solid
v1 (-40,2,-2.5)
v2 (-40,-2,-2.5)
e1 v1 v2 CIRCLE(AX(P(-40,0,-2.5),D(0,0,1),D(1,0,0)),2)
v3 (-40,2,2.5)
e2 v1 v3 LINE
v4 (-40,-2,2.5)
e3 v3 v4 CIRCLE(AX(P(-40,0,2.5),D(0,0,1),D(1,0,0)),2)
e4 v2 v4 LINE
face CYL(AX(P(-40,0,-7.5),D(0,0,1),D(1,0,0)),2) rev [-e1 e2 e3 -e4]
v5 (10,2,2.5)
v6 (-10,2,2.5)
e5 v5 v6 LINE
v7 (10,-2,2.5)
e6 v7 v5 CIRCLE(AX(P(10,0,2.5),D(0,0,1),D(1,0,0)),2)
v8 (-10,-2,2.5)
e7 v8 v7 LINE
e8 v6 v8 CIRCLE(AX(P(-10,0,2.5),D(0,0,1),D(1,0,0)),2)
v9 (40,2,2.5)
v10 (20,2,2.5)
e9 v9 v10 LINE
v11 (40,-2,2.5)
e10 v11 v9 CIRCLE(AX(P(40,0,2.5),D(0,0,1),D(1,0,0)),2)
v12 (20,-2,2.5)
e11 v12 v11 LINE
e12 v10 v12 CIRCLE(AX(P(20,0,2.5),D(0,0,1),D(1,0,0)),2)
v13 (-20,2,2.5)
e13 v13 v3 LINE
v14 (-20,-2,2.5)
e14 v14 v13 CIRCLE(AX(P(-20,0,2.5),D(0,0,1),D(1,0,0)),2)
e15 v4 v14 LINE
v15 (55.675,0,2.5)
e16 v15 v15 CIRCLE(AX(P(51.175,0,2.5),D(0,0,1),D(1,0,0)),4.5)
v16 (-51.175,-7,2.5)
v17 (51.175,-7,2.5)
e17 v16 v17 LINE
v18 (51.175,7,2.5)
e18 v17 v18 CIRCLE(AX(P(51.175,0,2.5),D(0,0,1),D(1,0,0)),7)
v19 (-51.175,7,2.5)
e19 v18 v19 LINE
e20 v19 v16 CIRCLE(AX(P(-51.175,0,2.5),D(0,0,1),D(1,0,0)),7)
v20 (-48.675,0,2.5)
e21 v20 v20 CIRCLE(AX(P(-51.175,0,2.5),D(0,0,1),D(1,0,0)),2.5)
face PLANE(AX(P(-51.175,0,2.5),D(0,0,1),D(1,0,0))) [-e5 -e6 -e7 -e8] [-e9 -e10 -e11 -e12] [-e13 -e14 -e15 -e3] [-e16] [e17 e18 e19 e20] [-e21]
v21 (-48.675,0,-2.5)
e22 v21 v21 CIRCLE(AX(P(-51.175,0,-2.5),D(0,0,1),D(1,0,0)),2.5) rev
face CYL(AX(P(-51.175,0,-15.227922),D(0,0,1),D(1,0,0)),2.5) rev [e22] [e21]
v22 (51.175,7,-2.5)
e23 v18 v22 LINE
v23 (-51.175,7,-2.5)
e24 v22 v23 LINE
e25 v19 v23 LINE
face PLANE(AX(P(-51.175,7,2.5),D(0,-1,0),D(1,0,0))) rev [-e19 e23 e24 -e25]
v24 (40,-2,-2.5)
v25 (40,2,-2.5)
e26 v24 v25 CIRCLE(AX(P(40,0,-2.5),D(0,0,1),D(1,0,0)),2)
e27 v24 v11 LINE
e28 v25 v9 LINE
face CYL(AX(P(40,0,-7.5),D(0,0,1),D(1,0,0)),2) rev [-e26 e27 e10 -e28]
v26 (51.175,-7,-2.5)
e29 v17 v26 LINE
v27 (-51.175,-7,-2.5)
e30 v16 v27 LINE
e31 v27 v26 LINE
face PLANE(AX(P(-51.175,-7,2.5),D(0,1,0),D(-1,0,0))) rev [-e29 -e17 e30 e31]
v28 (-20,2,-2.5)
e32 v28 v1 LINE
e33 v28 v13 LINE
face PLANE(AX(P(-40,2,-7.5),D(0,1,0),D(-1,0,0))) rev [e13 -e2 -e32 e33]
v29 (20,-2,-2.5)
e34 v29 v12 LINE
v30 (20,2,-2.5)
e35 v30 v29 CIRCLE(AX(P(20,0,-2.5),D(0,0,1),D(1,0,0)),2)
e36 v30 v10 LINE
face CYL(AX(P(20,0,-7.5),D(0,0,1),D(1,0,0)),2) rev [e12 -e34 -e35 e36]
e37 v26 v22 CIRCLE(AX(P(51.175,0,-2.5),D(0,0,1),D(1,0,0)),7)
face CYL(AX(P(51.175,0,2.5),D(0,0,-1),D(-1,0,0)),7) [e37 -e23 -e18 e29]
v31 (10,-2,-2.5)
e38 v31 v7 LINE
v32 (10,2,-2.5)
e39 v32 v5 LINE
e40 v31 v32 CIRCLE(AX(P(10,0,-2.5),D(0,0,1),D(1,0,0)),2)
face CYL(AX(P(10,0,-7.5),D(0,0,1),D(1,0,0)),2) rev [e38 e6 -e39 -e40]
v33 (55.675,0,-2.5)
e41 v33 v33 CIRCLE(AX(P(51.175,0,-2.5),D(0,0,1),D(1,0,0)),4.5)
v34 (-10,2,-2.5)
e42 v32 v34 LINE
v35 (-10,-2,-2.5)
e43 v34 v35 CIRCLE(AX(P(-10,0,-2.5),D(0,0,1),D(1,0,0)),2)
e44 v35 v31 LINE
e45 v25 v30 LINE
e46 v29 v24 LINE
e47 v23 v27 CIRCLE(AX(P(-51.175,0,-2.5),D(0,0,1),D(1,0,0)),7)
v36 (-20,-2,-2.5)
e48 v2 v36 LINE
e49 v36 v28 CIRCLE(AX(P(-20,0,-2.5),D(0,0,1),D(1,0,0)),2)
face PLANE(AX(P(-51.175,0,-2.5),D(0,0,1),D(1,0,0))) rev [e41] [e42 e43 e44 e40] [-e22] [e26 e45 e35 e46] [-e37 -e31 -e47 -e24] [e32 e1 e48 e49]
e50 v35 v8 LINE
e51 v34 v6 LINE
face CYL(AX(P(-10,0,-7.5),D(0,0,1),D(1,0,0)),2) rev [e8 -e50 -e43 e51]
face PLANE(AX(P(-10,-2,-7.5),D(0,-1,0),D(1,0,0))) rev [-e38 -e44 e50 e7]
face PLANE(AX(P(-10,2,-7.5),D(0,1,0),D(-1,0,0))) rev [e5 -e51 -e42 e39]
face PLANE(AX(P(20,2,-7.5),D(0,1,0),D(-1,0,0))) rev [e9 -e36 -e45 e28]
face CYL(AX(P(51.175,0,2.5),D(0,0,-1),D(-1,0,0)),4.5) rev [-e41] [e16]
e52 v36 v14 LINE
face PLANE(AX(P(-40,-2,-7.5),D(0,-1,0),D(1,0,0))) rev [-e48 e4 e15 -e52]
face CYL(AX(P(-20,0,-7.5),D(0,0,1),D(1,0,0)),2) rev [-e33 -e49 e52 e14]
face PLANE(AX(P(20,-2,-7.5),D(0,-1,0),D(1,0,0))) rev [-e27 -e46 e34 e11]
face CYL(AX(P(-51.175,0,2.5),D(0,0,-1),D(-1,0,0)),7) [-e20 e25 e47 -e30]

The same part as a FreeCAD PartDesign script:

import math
import FreeCAD as App
import Part
import Sketcher

doc = App.newDocument("Part")
body = doc.addObject("PartDesign::Body", "Body")

# Sketch on XY plane
sketch1 = doc.addObject("Sketcher::SketchObject", "Sketch")
body.addObject(sketch1)
sketch1.AttachmentSupport = (doc.XY_Plane, [""])
sketch1.MapMode = "FlatFace"
sketch1.addGeometry([
    Part.LineSegment(App.Vector(51.2, 7, 0), App.Vector(-51.2, 7, 0)),  # 0
    Part.ArcOfCircle(Part.Circle(App.Vector(-51.2, 0, 0), App.Vector(0, 0, 1), 7), math.radians(90), math.radians(270)),  # 1
    Part.LineSegment(App.Vector(-51.2, -7, 0), App.Vector(51.2, -7, 0)),  # 2
    Part.ArcOfCircle(Part.Circle(App.Vector(51.2, 0, 0), App.Vector(0, 0, 1), 7), math.radians(-90), math.radians(90)),  # 3
    Part.Circle(App.Vector(51.2, 0, 0), App.Vector(0, 0, 1), 4.5),  # 4
    Part.Circle(App.Vector(-51.2, 0, 0), App.Vector(0, 0, 1), 4.5),  # 5
], False)
sketch1.addConstraint([
    Sketcher.Constraint("Tangent", 0, 2, 1, 1),
    Sketcher.Constraint("Tangent", 1, 2, 2, 1),
    Sketcher.Constraint("Tangent", 2, 2, 3, 1),
    Sketcher.Constraint("Tangent", 3, 2, 0, 1),
    Sketcher.Constraint("Horizontal", 0),
    Sketcher.Constraint("Horizontal", 2),
    Sketcher.Constraint("Coincident", 4, 3, 3, 3),
    Sketcher.Constraint("Coincident", 5, 3, 1, 3),
    Sketcher.Constraint("Equal", 4, 5),
    Sketcher.Constraint("Symmetric", 1, 3, 3, 3, -1, 1),
    Sketcher.Constraint("Diameter", 4, 9.0),
    Sketcher.Constraint("Radius", 1, 7.0),
    Sketcher.Constraint("DistanceX", 0, 2, 0, 1, 102.35),
])
pad1 = doc.addObject("PartDesign::Pad", "Pad")
body.addObject(pad1)
pad1.Profile = sketch1
pad1.Length = 5
pad1.Midplane = True

# Sketch on XY plane
sketch2 = doc.addObject("Sketcher::SketchObject", "Sketch001")
body.addObject(sketch2)
sketch2.AttachmentSupport = (doc.XY_Plane, [""])
sketch2.MapMode = "FlatFace"
sketch2.AttachmentOffset = App.Placement(App.Vector(0, 0, 2.5), App.Rotation())
sketch2.addGeometry([
    Part.LineSegment(App.Vector(10, 2, 0), App.Vector(-10, 2, 0)),
    Part.ArcOfCircle(Part.Circle(App.Vector(-10, 0, 0), App.Vector(0, 0, 1), 2), math.radians(90), math.radians(270)),
    Part.LineSegment(App.Vector(-10, -2, 0), App.Vector(10, -2, 0)),
    Part.ArcOfCircle(Part.Circle(App.Vector(10, 0, 0), App.Vector(0, 0, 1), 2), math.radians(-90), math.radians(90)),
], False)
sketch2.addConstraint([
    Sketcher.Constraint("Tangent", 0, 2, 1, 1),
    Sketcher.Constraint("Tangent", 1, 2, 2, 1),
    Sketcher.Constraint("Tangent", 2, 2, 3, 1),
    Sketcher.Constraint("Tangent", 3, 2, 0, 1),
    Sketcher.Constraint("Horizontal", 0),
    Sketcher.Constraint("Horizontal", 2),
    Sketcher.Constraint("Symmetric", 1, 3, 3, 3, -1, 1),
    Sketcher.Constraint("Radius", 1, 2.0),
    Sketcher.Constraint("DistanceX", 0, 2, 0, 1, 20.0),
])
pocket1 = doc.addObject("PartDesign::Pocket", "Pocket")
body.addObject(pocket1)
pocket1.Profile = sketch2
pocket1.Length = 10
doc.recompute()

linearpattern = doc.addObject("PartDesign::LinearPattern", "LinearPattern")
body.addObject(linearpattern)
linearpattern.Originals = [pocket1]
linearpattern.Direction = (doc.X_Axis, [""])
linearpattern.Mode = "offset"
linearpattern.Offset = 30
linearpattern.Occurrences = 2
linearpattern.Reversed = True
body.Tip = linearpattern
doc.recompute()

linearpattern2 = doc.addObject("PartDesign::LinearPattern", "LinearPattern001")
body.addObject(linearpattern2)
linearpattern2.Originals = [pocket1]
linearpattern2.Direction = (doc.X_Axis, [""])
linearpattern2.Mode = "offset"
linearpattern2.Offset = 30
linearpattern2.Occurrences = 2
body.Tip = linearpattern2

# Sketch on XY plane
sketch3 = doc.addObject("Sketcher::SketchObject", "Sketch002")
body.addObject(sketch3)
sketch3.AttachmentSupport = (doc.XY_Plane, [""])
sketch3.MapMode = "FlatFace"
sketch3.AttachmentOffset = App.Placement(App.Vector(0, 0, -2.5), App.Rotation())
sketch3.addGeometry([
    Part.Circle(App.Vector(-51.2, 0, 0), App.Vector(0, 0, 1), 4.5),
    Part.Circle(App.Vector(-51.2, 0, 0), App.Vector(0, 0, 1), 2.5),
], False)
sketch3.addConstraint([
    Sketcher.Constraint("Coincident", 1, 3, 0, 3),
    Sketcher.Constraint("PointOnObject", 0, 3, -1),
    Sketcher.Constraint("Diameter", 0, 9.0),
    Sketcher.Constraint("Diameter", 1, 5.0),
    Sketcher.Constraint("DistanceX", 0, 3, -1, 1, 51.175),
])
pad2 = doc.addObject("PartDesign::Pad", "Pad001")
body.addObject(pad2)
pad2.Profile = sketch3
pad2.Length = 5

doc.recompute()
